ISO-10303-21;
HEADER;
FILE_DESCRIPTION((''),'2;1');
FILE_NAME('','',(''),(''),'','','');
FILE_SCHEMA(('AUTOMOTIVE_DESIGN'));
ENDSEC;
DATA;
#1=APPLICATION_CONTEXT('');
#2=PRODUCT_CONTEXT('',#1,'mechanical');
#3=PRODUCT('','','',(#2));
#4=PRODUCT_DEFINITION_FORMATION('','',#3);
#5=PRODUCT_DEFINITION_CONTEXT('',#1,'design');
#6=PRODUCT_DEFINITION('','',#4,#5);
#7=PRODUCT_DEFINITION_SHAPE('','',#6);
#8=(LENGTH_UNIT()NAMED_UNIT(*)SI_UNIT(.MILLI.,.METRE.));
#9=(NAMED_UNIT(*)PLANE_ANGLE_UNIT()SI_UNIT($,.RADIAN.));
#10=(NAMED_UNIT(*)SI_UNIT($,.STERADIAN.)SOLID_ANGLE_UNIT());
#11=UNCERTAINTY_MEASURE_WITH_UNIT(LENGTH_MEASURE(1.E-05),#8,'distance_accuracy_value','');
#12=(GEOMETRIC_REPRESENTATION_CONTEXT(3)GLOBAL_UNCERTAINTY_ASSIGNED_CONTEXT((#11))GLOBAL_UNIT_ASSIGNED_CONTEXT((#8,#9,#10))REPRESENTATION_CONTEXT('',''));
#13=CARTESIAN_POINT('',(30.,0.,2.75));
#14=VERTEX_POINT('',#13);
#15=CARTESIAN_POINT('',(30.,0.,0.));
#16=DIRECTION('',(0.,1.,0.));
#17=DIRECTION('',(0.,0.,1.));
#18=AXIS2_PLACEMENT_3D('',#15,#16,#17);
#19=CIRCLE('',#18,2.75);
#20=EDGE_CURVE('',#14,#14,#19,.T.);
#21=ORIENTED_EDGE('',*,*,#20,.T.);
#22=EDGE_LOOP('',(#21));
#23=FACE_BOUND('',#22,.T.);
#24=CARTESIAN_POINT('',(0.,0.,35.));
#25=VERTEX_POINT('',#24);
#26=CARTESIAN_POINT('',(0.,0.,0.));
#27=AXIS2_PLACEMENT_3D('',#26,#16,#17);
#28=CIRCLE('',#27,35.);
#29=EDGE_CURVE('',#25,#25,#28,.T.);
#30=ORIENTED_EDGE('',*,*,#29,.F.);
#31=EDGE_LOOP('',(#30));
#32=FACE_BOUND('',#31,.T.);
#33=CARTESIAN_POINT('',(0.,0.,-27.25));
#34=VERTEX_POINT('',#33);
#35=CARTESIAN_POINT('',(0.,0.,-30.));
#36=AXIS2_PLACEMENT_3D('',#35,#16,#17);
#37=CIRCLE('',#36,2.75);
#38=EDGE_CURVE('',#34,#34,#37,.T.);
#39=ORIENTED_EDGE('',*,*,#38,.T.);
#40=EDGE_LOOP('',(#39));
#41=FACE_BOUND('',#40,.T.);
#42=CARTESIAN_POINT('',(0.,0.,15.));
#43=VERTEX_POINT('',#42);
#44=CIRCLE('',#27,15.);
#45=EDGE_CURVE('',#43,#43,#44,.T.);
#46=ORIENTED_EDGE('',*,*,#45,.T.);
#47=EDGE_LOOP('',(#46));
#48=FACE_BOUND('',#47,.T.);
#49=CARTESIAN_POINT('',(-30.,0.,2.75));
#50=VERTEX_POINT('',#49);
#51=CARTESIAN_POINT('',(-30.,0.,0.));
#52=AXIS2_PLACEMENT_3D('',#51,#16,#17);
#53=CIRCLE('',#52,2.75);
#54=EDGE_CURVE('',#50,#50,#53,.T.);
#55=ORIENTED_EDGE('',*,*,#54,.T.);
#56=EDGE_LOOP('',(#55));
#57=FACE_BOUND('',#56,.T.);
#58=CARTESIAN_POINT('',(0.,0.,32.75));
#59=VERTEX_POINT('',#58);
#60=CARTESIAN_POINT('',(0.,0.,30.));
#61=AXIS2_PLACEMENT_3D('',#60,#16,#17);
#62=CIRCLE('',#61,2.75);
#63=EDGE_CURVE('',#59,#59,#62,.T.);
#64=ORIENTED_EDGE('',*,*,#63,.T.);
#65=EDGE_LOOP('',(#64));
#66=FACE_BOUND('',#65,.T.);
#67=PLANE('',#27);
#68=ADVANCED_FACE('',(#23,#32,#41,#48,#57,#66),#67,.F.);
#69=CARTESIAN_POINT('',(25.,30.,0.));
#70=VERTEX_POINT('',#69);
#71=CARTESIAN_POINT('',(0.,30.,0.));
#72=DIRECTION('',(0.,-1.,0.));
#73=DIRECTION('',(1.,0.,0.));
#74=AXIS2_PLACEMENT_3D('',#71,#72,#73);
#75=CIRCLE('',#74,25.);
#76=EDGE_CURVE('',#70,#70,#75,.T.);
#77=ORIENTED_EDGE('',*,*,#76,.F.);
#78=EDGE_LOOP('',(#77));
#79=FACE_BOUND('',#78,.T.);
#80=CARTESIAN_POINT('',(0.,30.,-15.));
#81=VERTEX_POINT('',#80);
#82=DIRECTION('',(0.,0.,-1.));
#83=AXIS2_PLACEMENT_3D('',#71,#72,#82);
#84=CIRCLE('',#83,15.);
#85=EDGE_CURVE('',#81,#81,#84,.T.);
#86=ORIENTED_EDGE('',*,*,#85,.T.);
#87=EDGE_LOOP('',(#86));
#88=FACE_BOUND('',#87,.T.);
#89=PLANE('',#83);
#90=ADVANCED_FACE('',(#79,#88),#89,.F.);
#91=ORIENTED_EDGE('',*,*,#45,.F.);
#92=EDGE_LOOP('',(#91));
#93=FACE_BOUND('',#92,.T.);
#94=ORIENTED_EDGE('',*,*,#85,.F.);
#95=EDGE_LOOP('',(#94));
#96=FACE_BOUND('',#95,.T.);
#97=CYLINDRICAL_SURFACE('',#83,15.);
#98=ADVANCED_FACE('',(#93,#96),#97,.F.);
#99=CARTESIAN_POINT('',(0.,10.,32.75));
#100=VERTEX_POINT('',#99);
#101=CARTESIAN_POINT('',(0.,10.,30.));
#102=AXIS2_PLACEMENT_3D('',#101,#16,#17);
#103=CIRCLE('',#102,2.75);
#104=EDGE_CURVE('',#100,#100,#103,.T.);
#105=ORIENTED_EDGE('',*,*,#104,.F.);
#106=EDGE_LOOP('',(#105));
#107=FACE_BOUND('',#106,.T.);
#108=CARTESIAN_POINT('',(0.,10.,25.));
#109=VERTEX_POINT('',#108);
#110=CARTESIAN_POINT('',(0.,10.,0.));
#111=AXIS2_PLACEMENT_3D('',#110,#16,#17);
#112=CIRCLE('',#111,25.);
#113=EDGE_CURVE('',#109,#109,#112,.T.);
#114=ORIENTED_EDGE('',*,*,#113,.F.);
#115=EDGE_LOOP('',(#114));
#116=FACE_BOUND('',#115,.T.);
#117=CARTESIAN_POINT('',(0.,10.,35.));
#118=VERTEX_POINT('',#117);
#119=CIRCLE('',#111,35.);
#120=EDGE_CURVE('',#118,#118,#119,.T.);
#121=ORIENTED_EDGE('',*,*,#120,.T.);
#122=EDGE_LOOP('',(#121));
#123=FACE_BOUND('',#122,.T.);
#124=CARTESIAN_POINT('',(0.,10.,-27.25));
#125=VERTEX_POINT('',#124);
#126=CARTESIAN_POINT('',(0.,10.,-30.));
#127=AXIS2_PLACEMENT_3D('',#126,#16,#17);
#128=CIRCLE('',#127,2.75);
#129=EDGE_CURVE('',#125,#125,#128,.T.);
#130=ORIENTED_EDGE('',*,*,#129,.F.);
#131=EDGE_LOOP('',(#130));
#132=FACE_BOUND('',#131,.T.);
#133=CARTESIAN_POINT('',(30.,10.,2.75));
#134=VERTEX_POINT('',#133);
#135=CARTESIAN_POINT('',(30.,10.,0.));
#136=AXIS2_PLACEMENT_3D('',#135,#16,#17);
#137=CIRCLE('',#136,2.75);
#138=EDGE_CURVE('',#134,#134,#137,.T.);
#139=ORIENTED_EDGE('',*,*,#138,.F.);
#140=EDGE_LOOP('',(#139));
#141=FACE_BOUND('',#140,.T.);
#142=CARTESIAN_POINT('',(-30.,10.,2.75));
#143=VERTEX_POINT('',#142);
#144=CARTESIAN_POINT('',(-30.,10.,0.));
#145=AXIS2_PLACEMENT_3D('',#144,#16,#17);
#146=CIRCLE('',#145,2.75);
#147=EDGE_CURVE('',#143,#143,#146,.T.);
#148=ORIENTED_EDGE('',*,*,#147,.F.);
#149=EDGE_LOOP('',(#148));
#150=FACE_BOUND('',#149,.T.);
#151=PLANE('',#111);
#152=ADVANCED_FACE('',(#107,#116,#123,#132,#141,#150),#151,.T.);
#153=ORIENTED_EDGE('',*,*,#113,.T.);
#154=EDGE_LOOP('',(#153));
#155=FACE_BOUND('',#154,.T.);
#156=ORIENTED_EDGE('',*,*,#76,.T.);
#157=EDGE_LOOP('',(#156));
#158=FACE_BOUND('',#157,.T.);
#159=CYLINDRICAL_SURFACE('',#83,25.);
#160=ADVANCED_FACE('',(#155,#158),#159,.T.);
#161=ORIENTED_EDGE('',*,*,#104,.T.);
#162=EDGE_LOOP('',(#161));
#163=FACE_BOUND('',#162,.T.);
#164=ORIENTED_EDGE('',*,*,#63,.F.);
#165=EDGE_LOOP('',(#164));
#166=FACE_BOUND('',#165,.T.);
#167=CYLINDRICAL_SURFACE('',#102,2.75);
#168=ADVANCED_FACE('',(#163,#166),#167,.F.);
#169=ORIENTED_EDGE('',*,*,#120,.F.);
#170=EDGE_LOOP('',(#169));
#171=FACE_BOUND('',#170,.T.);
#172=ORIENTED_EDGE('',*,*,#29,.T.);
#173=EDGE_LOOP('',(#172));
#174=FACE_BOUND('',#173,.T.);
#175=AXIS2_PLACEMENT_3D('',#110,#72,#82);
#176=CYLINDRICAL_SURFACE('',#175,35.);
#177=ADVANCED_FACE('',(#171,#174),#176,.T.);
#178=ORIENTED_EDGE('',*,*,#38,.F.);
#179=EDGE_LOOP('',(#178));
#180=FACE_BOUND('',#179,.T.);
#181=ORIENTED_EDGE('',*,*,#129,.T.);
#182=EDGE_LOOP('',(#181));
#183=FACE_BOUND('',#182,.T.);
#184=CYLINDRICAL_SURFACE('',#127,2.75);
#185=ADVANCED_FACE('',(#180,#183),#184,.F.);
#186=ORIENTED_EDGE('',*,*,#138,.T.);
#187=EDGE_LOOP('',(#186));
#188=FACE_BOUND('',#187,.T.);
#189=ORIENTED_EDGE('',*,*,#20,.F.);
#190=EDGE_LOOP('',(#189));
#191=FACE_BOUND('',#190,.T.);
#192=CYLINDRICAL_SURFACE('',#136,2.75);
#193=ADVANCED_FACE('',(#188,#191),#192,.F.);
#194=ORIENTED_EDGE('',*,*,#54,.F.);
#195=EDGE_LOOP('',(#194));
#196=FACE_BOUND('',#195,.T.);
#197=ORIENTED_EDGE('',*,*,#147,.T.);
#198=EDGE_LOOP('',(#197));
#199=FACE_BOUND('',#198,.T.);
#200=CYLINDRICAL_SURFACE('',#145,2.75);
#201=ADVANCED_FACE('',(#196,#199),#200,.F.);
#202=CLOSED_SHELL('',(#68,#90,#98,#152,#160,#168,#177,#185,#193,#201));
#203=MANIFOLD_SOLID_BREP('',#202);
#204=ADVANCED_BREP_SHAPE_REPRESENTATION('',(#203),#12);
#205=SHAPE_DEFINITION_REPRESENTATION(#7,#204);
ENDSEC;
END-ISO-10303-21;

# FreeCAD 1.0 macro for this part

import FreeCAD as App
import Part
import Sketcher

V = App.Vector
Q = App.Units.Quantity

doc = App.newDocument("Part")
body = doc.addObject("PartDesign::Body", "Body")

# Sketch on XZ plane
sketch1 = body.newObject("Sketcher::SketchObject", "Sketch")
sketch1.AttachmentSupport = (doc.getObject("XZ_Plane"), [""])
sketch1.MapMode = "FlatFace"
sketch1.addGeometry(Part.Circle(V(0, 0, 0), V(0, 0, 1), 35), False)
sketch1.addConstraint([
    Sketcher.Constraint("Coincident", 0, 3, -1, 1),
    Sketcher.Constraint("Diameter", 0, Q("70 mm")),
])
pad1 = body.newObject("PartDesign::Pad", "Pad")
pad1.Profile = sketch1
pad1.Length = 10
pad1.Reversed = True

# Sketch on XZ plane
sketch2 = body.newObject("Sketcher::SketchObject", "Sketch001")
sketch2.AttachmentSupport = (doc.getObject("XZ_Plane"), [""])
sketch2.MapMode = "FlatFace"
sketch2.addGeometry([
    Part.Circle(V(0, 0, 0), V(0, 0, 1), 25),
    Part.Circle(V(0, 0, 0), V(0, 0, 1), 15),
], False)
sketch2.addConstraint([
    Sketcher.Constraint("Coincident", 0, 3, -1, 1),
    Sketcher.Constraint("Coincident", 1, 3, -1, 1),
    Sketcher.Constraint("Diameter", 0, Q("50 mm")),
    Sketcher.Constraint("Diameter", 1, Q("30 mm")),
])
pad2 = body.newObject("PartDesign::Pad", "Pad001")
pad2.Profile = sketch2
pad2.Length = 30
pad2.Reversed = True

# Sketch on XZ plane
sketch3 = body.newObject("Sketcher::SketchObject", "Sketch002")
sketch3.AttachmentSupport = (doc.getObject("XZ_Plane"), [""])
sketch3.MapMode = "FlatFace"
sketch3.AttachmentOffset = App.Placement(V(0, 0, -10), App.Rotation())
sketch3.addGeometry([
    Part.Circle(V(0, -30, 0), V(0, 0, 1), 2.8),
    Part.Circle(V(30, 0, 0), V(0, 0, 1), 2.8),
    Part.Circle(V(0, 30, 0), V(0, 0, 1), 2.8),
    Part.Circle(V(-30, 0, 0), V(0, 0, 1), 2.8),
], False)
sketch3.addConstraint([
    Sketcher.Constraint("Equal", 0, 1),
    Sketcher.Constraint("Equal", 1, 2),
    Sketcher.Constraint("Equal", 2, 3),
    Sketcher.Constraint("Symmetric", 0, 3, 2, 3, -1, 1),
    Sketcher.Constraint("Symmetric", 1, 3, 3, 3, -1, 1),
    Sketcher.Constraint("PointOnObject", 0, 3, -2),
    Sketcher.Constraint("PointOnObject", 1, 3, -1),
    Sketcher.Constraint("Diameter", 0, Q("5.5 mm")),
    Sketcher.Constraint("DistanceY", 0, 3, -1, 1, Q("30 mm")),
    Sketcher.Constraint("DistanceX", -1, 1, 1, 3, Q("30 mm")),
])
doc.recompute()
hole = body.newObject("PartDesign::Hole", "Hole")
hole.Profile = sketch3
hole.ThreadType = "None"
hole.Diameter = 5.5
hole.DepthType = "ThroughAll"
hole.Reversed = True

# Sketch on XZ plane
sketch4 = body.newObject("Sketcher::SketchObject", "Sketch003")
sketch4.AttachmentSupport = (doc.getObject("XZ_Plane"), [""])
sketch4.MapMode = "FlatFace"
sketch4.AttachmentOffset = App.Placement(V(0, 0, -10), App.Rotation())
sketch4.addGeometry(Part.Circle(V(0, 0, 0), V(0, 0, 1), 15), False)
sketch4.addConstraint([
    Sketcher.Constraint("Coincident", 0, 3, -1, 1),
    Sketcher.Constraint("Diameter", 0, Q("30 mm")),
])
pocket1 = body.newObject("PartDesign::Pocket", "Pocket")
pocket1.Profile = sketch4
pocket1.Type = "ThroughAll"
pocket1.Reversed = True

doc.recompute()
